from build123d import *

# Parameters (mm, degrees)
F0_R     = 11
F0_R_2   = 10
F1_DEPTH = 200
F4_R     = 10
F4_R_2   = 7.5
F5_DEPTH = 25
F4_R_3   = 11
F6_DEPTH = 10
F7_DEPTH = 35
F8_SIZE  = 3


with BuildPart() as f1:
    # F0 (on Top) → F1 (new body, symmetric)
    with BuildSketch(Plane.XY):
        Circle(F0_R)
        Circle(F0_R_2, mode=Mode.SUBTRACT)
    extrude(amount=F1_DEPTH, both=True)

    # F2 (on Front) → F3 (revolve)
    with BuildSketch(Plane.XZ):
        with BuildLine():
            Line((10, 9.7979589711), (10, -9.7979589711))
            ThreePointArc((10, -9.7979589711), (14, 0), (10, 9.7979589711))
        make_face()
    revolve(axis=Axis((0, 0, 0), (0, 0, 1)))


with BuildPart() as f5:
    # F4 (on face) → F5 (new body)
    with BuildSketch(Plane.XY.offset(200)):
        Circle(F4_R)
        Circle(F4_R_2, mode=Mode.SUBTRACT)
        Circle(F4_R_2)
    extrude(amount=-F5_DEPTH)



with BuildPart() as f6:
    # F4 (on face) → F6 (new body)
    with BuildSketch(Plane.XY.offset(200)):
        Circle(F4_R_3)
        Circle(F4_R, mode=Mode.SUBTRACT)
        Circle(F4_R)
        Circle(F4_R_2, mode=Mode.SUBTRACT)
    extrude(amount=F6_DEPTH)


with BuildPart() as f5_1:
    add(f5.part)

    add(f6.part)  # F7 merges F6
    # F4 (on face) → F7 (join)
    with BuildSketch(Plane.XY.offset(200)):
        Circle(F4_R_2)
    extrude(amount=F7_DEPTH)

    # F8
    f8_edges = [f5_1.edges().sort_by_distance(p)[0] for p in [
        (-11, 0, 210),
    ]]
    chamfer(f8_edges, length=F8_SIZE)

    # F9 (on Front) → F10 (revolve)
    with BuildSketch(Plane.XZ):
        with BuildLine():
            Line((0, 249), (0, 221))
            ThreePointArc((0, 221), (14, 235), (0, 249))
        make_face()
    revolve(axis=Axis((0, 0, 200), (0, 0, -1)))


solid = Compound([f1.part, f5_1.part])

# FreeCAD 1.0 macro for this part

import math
import FreeCAD as App
import Part
import Sketcher


def edges_at(feature, points):
    """Names of the edges that pass closest to the given points."""
    edges = feature.Shape.Edges
    near = lambda p: min(range(len(edges)), key=lambda i: edges[i].distToShape(Part.Vertex(*p))[0])
    return sorted({f"Edge{near(p) + 1}" for p in points})

doc = App.newDocument("Part")
body = doc.addObject("PartDesign::Body", "Body")

# Sketch on XY plane
sketch1 = body.newObject("Sketcher::SketchObject", "Sketch")
sketch1.AttachmentSupport = (doc.getObject("XY_Plane"), [""])
sketch1.MapMode = "FlatFace"
sketch1.addGeometry([
    Part.Circle(App.Vector(0, 0, 0), App.Vector(0, 0, 1), 11),
    Part.Circle(App.Vector(0, 0, 0), App.Vector(0, 0, 1), 10),
], False)
sketch1.addConstraint([
    Sketcher.Constraint("Coincident", 0, 3, -1, 1),
    Sketcher.Constraint("Coincident", 1, 3, -1, 1),
    Sketcher.Constraint("Diameter", 0, 22.0),
    Sketcher.Constraint("Diameter", 1, 20.0),
])
pad1 = body.newObject("PartDesign::Pad", "Pad")
pad1.Profile = sketch1
pad1.Length = 400
pad1.Midplane = True

# Sketch on XZ plane
sketch2 = body.newObject("Sketcher::SketchObject", "Sketch001")
sketch2.AttachmentSupport = (doc.getObject("XZ_Plane"), [""])
sketch2.MapMode = "FlatFace"
sketch2.addGeometry([
    Part.LineSegment(App.Vector(10, 10, 0), App.Vector(10, -10, 0)),
    Part.ArcOfCircle(Part.Circle(App.Vector(0, 0, 0), App.Vector(0, 0, 1), 14), math.radians(-44), math.radians(44)),
], False)
sketch2.addConstraint([
    Sketcher.Constraint("Coincident", 0, 1, 1, 2),
    Sketcher.Constraint("Coincident", 1, 1, 0, 2),
    Sketcher.Constraint("Vertical", 0),
    Sketcher.Constraint("Coincident", 1, 3, -1, 1),
    Sketcher.Constraint("Radius", 1, 14.0),
    Sketcher.Constraint("DistanceX", -1, 1, 0, 1, 10.0),
])
revolution = body.newObject("PartDesign::Revolution", "Revolution")
revolution.Profile = sketch2
revolution.ReferenceAxis = (sketch2, ["V_Axis"])
revolution.Angle = 360
body2 = doc.addObject("PartDesign::Body", "Body001")

# Sketch on XY plane
sketch3 = body2.newObject("Sketcher::SketchObject", "Sketch002")
sketch3.AttachmentSupport = (doc.getObject("XY_Plane001"), [""])
sketch3.MapMode = "FlatFace"
sketch3.AttachmentOffset = App.Placement(App.Vector(0, 0, 200), App.Rotation())
sketch3.addGeometry(Part.Circle(App.Vector(0, 0, 0), App.Vector(0, 0, 1), 10), False)
sketch3.addConstraint([
    Sketcher.Constraint("Coincident", 0, 3, -1, 1),
    Sketcher.Constraint("Diameter", 0, 20.0),
])
pad2 = body2.newObject("PartDesign::Pad", "Pad001")
pad2.Profile = sketch3
pad2.Length = 25
pad2.Reversed = True
body3 = doc.addObject("PartDesign::Body", "Body002")

# Sketch on XY plane
sketch4 = body3.newObject("Sketcher::SketchObject", "Sketch003")
sketch4.AttachmentSupport = (doc.getObject("XY_Plane002"), [""])
sketch4.MapMode = "FlatFace"
sketch4.AttachmentOffset = App.Placement(App.Vector(0, 0, 200), App.Rotation())
sketch4.addGeometry([
    Part.Circle(App.Vector(0, 0, 0), App.Vector(0, 0, 1), 11),
    Part.Circle(App.Vector(0, 0, 0), App.Vector(0, 0, 1), 8),
], False)
sketch4.addConstraint([
    Sketcher.Constraint("Coincident", 0, 3, -1, 1),
    Sketcher.Constraint("Coincident", 1, 3, -1, 1),
    Sketcher.Constraint("Diameter", 0, 22.0),
    Sketcher.Constraint("Diameter", 1, 15.0),
])
pad3 = body3.newObject("PartDesign::Pad", "Pad002")
pad3.Profile = sketch4
pad3.Length = 10
doc.recompute()

boolean = body2.newObject("PartDesign::Boolean", "Boolean")
boolean.Type = "Fuse"
boolean.addObjects([body3])

# Sketch on XY plane
sketch5 = body2.newObject("Sketcher::SketchObject", "Sketch004")
sketch5.AttachmentSupport = (doc.getObject("XY_Plane001"), [""])
sketch5.MapMode = "FlatFace"
sketch5.AttachmentOffset = App.Placement(App.Vector(0, 0, 200), App.Rotation())
sketch5.addGeometry(Part.Circle(App.Vector(0, 0, 0), App.Vector(0, 0, 1), 8), False)
sketch5.addConstraint([
    Sketcher.Constraint("Coincident", 0, 3, -1, 1),
    Sketcher.Constraint("Diameter", 0, 15.0),
])
pad4 = body2.newObject("PartDesign::Pad", "Pad003")
pad4.Profile = sketch5
pad4.Length = 35
doc.recompute()

chamfer = body2.newObject("PartDesign::Chamfer", "Chamfer")
chamfer.Base = (pad4, edges_at(pad4, [(-11, 0, 210)]))
chamfer.Size = 3

# Sketch on XZ plane
sketch6 = body2.newObject("Sketcher::SketchObject", "Sketch005")
sketch6.AttachmentSupport = (doc.getObject("XZ_Plane001"), [""])
sketch6.MapMode = "FlatFace"
sketch6.addGeometry([
    Part.LineSegment(App.Vector(0, 249, 0), App.Vector(0, 221, 0)),
    Part.ArcOfCircle(Part.Circle(App.Vector(0, 235, 0), App.Vector(0, 0, 1), 14), math.radians(-90), math.radians(90)),
], False)
sketch6.addConstraint([
    Sketcher.Constraint("Coincident", 0, 1, 1, 2),
    Sketcher.Constraint("Coincident", 1, 1, 0, 2),
    Sketcher.Constraint("Vertical", 0),
    Sketcher.Constraint("PointOnObject", 1, 3, -2),
    Sketcher.Constraint("PointOnObject", 0, 1, -2),
    Sketcher.Constraint("Radius", 1, 14.0),
    Sketcher.Constraint("DistanceY", -1, 1, 1, 3, 235.0),
])
revolution2 = body2.newObject("PartDesign::Revolution", "Revolution001")
revolution2.Profile = sketch6
revolution2.ReferenceAxis = (sketch6, ["V_Axis"])
revolution2.Angle = 360

doc.recompute()
